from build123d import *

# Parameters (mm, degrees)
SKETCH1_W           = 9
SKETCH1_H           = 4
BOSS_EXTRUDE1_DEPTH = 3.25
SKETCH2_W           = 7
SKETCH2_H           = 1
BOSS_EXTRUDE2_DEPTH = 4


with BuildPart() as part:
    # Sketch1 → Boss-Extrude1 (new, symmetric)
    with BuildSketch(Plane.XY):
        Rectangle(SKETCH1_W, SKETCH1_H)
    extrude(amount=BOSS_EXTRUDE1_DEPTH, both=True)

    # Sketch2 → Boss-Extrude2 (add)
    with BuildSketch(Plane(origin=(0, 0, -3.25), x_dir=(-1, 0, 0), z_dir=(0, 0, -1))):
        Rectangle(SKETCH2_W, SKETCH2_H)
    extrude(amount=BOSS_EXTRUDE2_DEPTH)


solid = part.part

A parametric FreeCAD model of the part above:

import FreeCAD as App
import Part
import Sketcher

V = App.Vector


def add_polygon(sketch, points):
    """Adds a closed chain of lines whose ends are joined by coincident constraints."""
    first, n = sketch.GeometryCount, len(points)
    for a, b in zip(points, points[1:] + points[:1]):
        sketch.addGeometry(Part.LineSegment(App.Vector(*a, 0), App.Vector(*b, 0)), False)
    for i in range(n):
        sketch.addConstraint(Sketcher.Constraint("Coincident", first + i, 2, first + (i + 1) % n, 1))

doc = App.newDocument("Part")
body = doc.addObject("PartDesign::Body", "Body")

# Sketch on XY plane
sketch1 = body.newObject("Sketcher::SketchObject", "Sketch")
sketch1.AttachmentSupport = (doc.getObject("XY_Plane"), [""])
sketch1.MapMode = "FlatFace"
add_polygon(sketch1, [(-4.5, 2), (-4.5, -2), (4.5, -2), (4.5, 2)])  # lines 0-3
sketch1.addConstraint([
    Sketcher.Constraint("Vertical", 0),
    Sketcher.Constraint("Horizontal", 1),
    Sketcher.Constraint("Vertical", 2),
    Sketcher.Constraint("Horizontal", 3),
    Sketcher.Constraint("Symmetric", 0, 2, 2, 2, -1, 1),
    Sketcher.Constraint("DistanceX", 1, 1, 1, 2, 9.0),
    Sketcher.Constraint("DistanceY", 0, 2, 0, 1, 4.0),
])
pad1 = body.newObject("PartDesign::Pad", "Pad")
pad1.Profile = sketch1
pad1.Length = 6.5
pad1.Midplane = True

# Sketch on XY plane
sketch2 = body.newObject("Sketcher::SketchObject", "Sketch001")
sketch2.AttachmentSupport = (doc.getObject("XY_Plane"), [""])
sketch2.MapMode = "FlatFace"
sketch2.AttachmentOffset = App.Placement(V(0, 0, -3.25), App.Rotation())
add_polygon(sketch2, [(3.5, 0.5), (3.5, -0.5), (-3.5, -0.5), (-3.5, 0.5)])  # lines 0-3
sketch2.addConstraint([
    Sketcher.Constraint("Vertical", 0),
    Sketcher.Constraint("Horizontal", 1),
    Sketcher.Constraint("Vertical", 2),
    Sketcher.Constraint("Horizontal", 3),
    Sketcher.Constraint("Symmetric", 0, 2, 2, 2, -1, 1),
    Sketcher.Constraint("DistanceX", 1, 2, 1, 1, 7.0),
    Sketcher.Constraint("DistanceY", 0, 2, 0, 1, 1.0),
])
pad2 = body.newObject("PartDesign::Pad", "Pad001")
pad2.Profile = sketch2
pad2.Length = 4
pad2.Reversed = True

doc.recompute()
